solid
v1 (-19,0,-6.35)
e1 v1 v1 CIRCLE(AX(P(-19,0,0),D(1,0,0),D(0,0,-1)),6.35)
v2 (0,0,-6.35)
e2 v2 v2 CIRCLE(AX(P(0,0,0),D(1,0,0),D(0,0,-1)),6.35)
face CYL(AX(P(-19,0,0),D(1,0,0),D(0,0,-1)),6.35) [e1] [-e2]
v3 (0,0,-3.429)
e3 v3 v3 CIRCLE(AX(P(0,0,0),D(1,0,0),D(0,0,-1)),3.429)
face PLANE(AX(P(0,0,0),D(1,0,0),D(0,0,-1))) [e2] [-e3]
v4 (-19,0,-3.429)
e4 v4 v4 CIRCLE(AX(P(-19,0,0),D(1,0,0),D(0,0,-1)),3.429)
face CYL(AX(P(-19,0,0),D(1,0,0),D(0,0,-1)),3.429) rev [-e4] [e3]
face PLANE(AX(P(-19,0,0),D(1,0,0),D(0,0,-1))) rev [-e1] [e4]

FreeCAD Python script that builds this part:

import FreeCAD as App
import Part
import Sketcher

V = App.Vector
Q = App.Units.Quantity

doc = App.newDocument("Part")
body = doc.addObject("PartDesign::Body", "Body")

# Sketch on YZ plane
sketch1 = body.newObject("Sketcher::SketchObject", "Sketch")
sketch1.AttachmentSupport = (doc.getObject("YZ_Plane"), [""])
sketch1.MapMode = "FlatFace"
sketch1.addGeometry([
    Part.Circle(V(0, 0, 0), V(0, 0, 1), 6.3),
    Part.Circle(V(0, 0, 0), V(0, 0, 1), 3.4),
], False)
sketch1.addConstraint([
    Sketcher.Constraint("Coincident", 0, 3, -1, 1),
    Sketcher.Constraint("Coincident", 1, 3, -1, 1),
    Sketcher.Constraint("Diameter", 0, Q("0.5 in")),
    Sketcher.Constraint("Diameter", 1, Q("0.27 in")),
])
pad1 = body.newObject("PartDesign::Pad", "Pad")
pad1.Profile = sketch1
pad1.Length = 19
pad1.Reversed = True

doc.recompute()
